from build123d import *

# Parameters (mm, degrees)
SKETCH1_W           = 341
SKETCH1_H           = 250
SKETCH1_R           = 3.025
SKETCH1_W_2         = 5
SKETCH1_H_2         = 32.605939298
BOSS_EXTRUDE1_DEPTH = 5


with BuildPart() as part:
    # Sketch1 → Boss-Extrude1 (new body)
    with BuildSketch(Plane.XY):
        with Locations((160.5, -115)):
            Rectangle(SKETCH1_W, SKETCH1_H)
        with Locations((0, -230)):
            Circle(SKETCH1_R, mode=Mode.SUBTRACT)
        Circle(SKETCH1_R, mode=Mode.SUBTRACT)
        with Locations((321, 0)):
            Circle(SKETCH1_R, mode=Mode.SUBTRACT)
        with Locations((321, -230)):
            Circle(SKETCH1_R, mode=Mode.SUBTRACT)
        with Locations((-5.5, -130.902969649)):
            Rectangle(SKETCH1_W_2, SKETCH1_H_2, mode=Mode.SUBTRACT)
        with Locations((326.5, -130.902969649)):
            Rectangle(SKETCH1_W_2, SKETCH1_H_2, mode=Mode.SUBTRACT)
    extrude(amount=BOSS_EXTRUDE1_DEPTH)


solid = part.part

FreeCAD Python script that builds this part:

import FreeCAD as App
import Part
import Sketcher


def add_polygon(sketch, points):
    """Adds a closed chain of lines whose ends are joined by coincident constraints."""
    first, n = sketch.GeometryCount, len(points)
    for a, b in zip(points, points[1:] + points[:1]):
        sketch.addGeometry(Part.LineSegment(App.Vector(*a, 0), App.Vector(*b, 0)), False)
    for i in range(n):
        sketch.addConstraint(Sketcher.Constraint("Coincident", first + i, 2, first + (i + 1) % n, 1))

doc = App.newDocument("Part")
body = doc.addObject("PartDesign::Body", "Body")

sketch1 = doc.addObject("Sketcher::SketchObject", "Sketch")
body.addObject(sketch1)
sketch1.AttachmentSupport = (doc.XY_Plane, [""])
sketch1.MapMode = "FlatFace"
add_polygon(sketch1, [(-10, 10), (-10, -240), (331, -240), (331, 10)])
sketch1.addGeometry(Part.Circle(App.Vector(0, -230, 0), App.Vector(0, 0, 1), 3.025), False)
add_polygon(sketch1, [(-3, -147.205939), (-8, -147.205939), (-8, -114.6), (-3, -114.6)])
sketch1.addGeometry(Part.Circle(App.Vector(321, -230, 0), App.Vector(0, 0, 1), 3.025), False)
add_polygon(sketch1, [(329, -147.205939), (324, -147.205939), (324, -114.6), (329, -114.6)])
sketch1.addGeometry(Part.Circle(App.Vector(0, 0, 0), App.Vector(0, 0, 1), 3.025), False)
sketch1.addGeometry(Part.Circle(App.Vector(321, 0, 0), App.Vector(0, 0, 1), 3.025), False)
sketch1.addConstraint([
    Sketcher.Constraint("Vertical", 0),
    Sketcher.Constraint("Horizontal", 1),
    Sketcher.Constraint("Vertical", 2),
    Sketcher.Constraint("Horizontal", 3),
    Sketcher.Constraint("Horizontal", 5),
    Sketcher.Constraint("Vertical", 6),
    Sketcher.Constraint("Horizontal", 7),
    Sketcher.Constraint("Vertical", 8),
    Sketcher.Constraint("Horizontal", 10),
    Sketcher.Constraint("Vertical", 11),
    Sketcher.Constraint("Horizontal", 12),
    Sketcher.Constraint("Vertical", 13),
    Sketcher.Constraint("Coincident", 14, 3, -1, 1),
    Sketcher.Constraint("Equal", 4, 9),
    Sketcher.Constraint("Equal", 9, 14),
    Sketcher.Constraint("Equal", 14, 15),
    Sketcher.Constraint("PointOnObject", 4, 3, -2),
    Sketcher.Constraint("PointOnObject", 15, 3, -1),
    Sketcher.Constraint("Horizontal", 4, 3, 9, 3),
    Sketcher.Constraint("Horizontal", 8, 2, 10, 2),
    Sketcher.Constraint("Horizontal", 7, 2, 11, 2),
    Sketcher.Constraint("Vertical", 9, 3, 15, 3),
    Sketcher.Constraint("Equal", 7, 10),
    Sketcher.Constraint("Diameter", 4, 6.05),
    Sketcher.Constraint("DistanceX", 1, 1, 1, 2, 341.0),
    Sketcher.Constraint("DistanceX", 5, 2, 5, 1, 5.0),
    Sketcher.Constraint("DistanceY", 0, 2, 0, 1, 250.0),
    Sketcher.Constraint("DistanceY", 4, 3, -1, 1, 230.0),
    Sketcher.Constraint("DistanceX", -1, 1, 9, 3, 321.0),
    Sketcher.Constraint("DistanceX", 0, 2, -1, 1, 10.0),
    Sketcher.Constraint("DistanceY", 0, 2, -1, 1, 240.0),
    Sketcher.Constraint("DistanceX", 5, 2, -1, 1, 8.0),
    Sketcher.Constraint("DistanceX", -1, 1, 10, 2, 324.0),
    Sketcher.Constraint("DistanceY", 6, 2, -1, 1, 114.6),
    Sketcher.Constraint("DistanceY", 6, 1, 6, 2, 32.605939),
])
pad1 = doc.addObject("PartDesign::Pad", "Pad")
body.addObject(pad1)
pad1.Profile = sketch1
pad1.Length = 5

doc.recompute()
